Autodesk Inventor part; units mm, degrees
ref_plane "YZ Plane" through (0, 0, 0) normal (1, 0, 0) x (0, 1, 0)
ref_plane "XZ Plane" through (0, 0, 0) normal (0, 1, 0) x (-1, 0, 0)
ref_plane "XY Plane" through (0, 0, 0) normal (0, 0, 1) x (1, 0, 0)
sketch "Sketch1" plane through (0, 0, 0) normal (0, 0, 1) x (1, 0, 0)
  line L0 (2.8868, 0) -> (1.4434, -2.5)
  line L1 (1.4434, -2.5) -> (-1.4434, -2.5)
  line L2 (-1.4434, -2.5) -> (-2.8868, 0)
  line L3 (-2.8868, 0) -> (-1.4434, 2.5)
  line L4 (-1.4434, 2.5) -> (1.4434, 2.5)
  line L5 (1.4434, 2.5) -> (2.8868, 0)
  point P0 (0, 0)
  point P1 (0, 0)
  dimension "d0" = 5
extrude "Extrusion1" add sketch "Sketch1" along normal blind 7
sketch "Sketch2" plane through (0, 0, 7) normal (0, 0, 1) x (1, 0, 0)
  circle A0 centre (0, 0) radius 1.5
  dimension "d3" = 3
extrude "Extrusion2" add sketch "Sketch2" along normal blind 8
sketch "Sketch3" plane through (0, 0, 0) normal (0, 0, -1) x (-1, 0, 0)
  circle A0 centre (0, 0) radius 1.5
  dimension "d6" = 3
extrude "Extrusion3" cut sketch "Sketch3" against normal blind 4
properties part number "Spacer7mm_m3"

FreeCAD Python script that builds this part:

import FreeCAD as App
import Part
import Sketcher
from FreeCAD import Vector
Q = App.Units.Quantity


def add_polygon(sketch, points):
    """Adds a closed chain of lines whose ends are joined by coincident constraints."""
    first, n = sketch.GeometryCount, len(points)
    for a, b in zip(points, points[1:] + points[:1]):
        sketch.addGeometry(Part.LineSegment(App.Vector(*a, 0), App.Vector(*b, 0)), False)
    for i in range(n):
        sketch.addConstraint(Sketcher.Constraint("Coincident", first + i, 2, first + (i + 1) % n, 1))

doc = App.newDocument("Part")
body = doc.addObject("PartDesign::Body", "Body")

sketch1 = body.newObject("Sketcher::SketchObject", "Sketch")
sketch1.AttachmentSupport = (doc.getObject("XY_Plane"), [""])
sketch1.MapMode = "FlatFace"
add_polygon(sketch1, [(1.4434, -2.5), (2.8868, 0), (1.4434, 2.5), (-1.4434, 2.5), (-2.8868, 0), (-1.4434, -2.5)])
sketch1.addConstraint(Sketcher.Constraint("Horizontal", 2))
sketch1.addConstraint(Sketcher.Constraint("Horizontal", 5))
sketch1.addConstraint(Sketcher.Constraint("Symmetric", 0, 2, 3, 2, -1, 1))
sketch1.addConstraint(Sketcher.Constraint("Symmetric", 1, 2, 4, 2, -1, 1))
sketch1.addConstraint(Sketcher.Constraint("PointOnObject", 0, 2, -1))
sketch1.addConstraint(Sketcher.Constraint("Parallel", 0, 3))
sketch1.addConstraint(Sketcher.Constraint("Vertical", 2, 2, 4, 2))
sketch1.addConstraint(Sketcher.Constraint("DistanceY", 4, 2, 2, 2, Q("5 mm")))
sketch1.addConstraint(Sketcher.Constraint("Angle", 0, Q("59.9996 deg")))
sketch1.addConstraint(Sketcher.Constraint("DistanceX", 2, 2, 2, 1, Q("2.8868 mm")))
pad1 = body.newObject("PartDesign::Pad", "Pad")
pad1.Profile = sketch1
pad1.Length = 7

sketch2 = body.newObject("Sketcher::SketchObject", "Sketch001")
sketch2.AttachmentSupport = (doc.getObject("XY_Plane"), [""])
sketch2.MapMode = "FlatFace"
sketch2.AttachmentOffset = App.Placement(Vector(0, 0, 7), App.Rotation())
sketch2.addGeometry(Part.Circle(Vector(0, 0, 0), Vector(0, 0, 1), 1.5), False)
sketch2.addConstraint(Sketcher.Constraint("Coincident", 0, 3, -1, 1))
sketch2.addConstraint(Sketcher.Constraint("Diameter", 0, Q("3 mm")))
pad2 = body.newObject("PartDesign::Pad", "Pad001")
pad2.Profile = sketch2
pad2.Length = 8

sketch3 = body.newObject("Sketcher::SketchObject", "Sketch002")
sketch3.AttachmentSupport = (doc.getObject("XY_Plane"), [""])
sketch3.MapMode = "FlatFace"
sketch3.addGeometry(Part.Circle(Vector(0, 0, 0), Vector(0, 0, 1), 1.5), False)
sketch3.addConstraint(Sketcher.Constraint("Coincident", 0, 3, -1, 1))
sketch3.addConstraint(Sketcher.Constraint("Diameter", 0, Q("3 mm")))
pocket1 = body.newObject("PartDesign::Pocket", "Pocket")
pocket1.Profile = sketch3
pocket1.Length = 4
pocket1.Reversed = True

doc.recompute()
